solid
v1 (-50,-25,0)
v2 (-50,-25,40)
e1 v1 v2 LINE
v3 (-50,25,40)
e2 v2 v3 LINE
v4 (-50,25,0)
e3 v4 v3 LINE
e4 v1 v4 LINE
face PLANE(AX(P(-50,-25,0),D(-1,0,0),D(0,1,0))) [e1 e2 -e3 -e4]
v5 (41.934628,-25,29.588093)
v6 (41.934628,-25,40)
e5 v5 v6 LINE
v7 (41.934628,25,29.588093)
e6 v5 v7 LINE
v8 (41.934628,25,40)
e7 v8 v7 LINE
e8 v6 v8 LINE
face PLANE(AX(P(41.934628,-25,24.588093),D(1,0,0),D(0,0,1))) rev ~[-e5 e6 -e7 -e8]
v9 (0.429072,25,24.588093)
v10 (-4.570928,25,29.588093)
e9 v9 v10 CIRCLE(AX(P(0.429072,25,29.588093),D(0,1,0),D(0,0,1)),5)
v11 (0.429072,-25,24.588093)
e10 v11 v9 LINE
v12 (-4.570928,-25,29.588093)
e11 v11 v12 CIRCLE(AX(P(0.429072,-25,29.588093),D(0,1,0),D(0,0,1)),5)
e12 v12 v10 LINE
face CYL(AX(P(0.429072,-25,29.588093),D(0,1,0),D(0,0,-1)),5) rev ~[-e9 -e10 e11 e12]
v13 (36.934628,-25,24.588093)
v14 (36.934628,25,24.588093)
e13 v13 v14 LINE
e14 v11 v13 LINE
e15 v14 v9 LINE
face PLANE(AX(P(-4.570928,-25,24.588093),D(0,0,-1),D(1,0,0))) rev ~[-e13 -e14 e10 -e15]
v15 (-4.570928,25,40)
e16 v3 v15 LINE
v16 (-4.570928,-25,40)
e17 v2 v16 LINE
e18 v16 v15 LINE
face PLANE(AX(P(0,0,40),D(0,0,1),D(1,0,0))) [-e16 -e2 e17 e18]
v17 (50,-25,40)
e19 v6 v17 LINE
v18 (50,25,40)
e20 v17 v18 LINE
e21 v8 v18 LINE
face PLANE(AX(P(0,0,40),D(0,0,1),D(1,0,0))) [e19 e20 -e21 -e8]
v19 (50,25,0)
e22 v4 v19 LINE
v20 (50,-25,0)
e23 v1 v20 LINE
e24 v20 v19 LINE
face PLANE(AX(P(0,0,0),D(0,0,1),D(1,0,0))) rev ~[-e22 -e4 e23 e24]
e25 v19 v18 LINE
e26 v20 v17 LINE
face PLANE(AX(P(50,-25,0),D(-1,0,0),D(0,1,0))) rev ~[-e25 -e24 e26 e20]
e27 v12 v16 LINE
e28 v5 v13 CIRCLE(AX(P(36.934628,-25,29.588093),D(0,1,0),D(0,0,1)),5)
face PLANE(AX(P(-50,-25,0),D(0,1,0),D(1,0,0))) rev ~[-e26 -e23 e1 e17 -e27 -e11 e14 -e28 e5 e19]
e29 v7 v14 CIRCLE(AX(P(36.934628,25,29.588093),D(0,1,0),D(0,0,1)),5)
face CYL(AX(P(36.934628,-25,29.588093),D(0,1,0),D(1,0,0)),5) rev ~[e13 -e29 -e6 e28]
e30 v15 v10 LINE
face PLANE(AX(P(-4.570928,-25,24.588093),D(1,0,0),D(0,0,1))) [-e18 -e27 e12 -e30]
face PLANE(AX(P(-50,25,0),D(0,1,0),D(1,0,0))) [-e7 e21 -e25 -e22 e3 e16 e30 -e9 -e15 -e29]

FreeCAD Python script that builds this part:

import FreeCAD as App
import Part
import Sketcher

V = App.Vector


def edges_at(feature, points):
    """Names of the edges that pass closest to the given points."""
    edges = feature.Shape.Edges
    near = lambda p: min(range(len(edges)), key=lambda i: edges[i].distToShape(Part.Vertex(*p))[0])
    return sorted({f"Edge{near(p) + 1}" for p in points})

doc = App.newDocument("Part")
params = doc.addObject("Spreadsheet::Sheet", "Params")
for row, (alias, value) in enumerate([
    ("sketch1_width", "100 mm"),
    ("sketch1_height", "50 mm"),
    ("pad1_length", "40 mm"),
    ("pocket1_length", "99 mm"),
    ("fillet_radius", "5 mm"),
], start=1):
    params.set(f"A{row}", alias)
    params.set(f"B{row}", "=" + value)
    params.setAlias(f"B{row}", alias)

body = doc.addObject("PartDesign::Body", "Body")

# Sketch on XY plane
sketch1 = doc.addObject("Sketcher::SketchObject", "Sketch")
body.addObject(sketch1)
sketch1.AttachmentSupport = (doc.XY_Plane, [""])
sketch1.MapMode = "FlatFace"
sketch1.addGeometry([
    Part.LineSegment(V(-50, 25, 0), V(-50, -25, 0)),
    Part.LineSegment(V(-50, -25, 0), V(50, -25, 0)),
    Part.LineSegment(V(50, -25, 0), V(50, 25, 0)),
    Part.LineSegment(V(50, 25, 0), V(-50, 25, 0)),
], False)
sketch1.addConstraint([
    Sketcher.Constraint("Coincident", 0, 2, 1, 1),
    Sketcher.Constraint("Coincident", 1, 2, 2, 1),
    Sketcher.Constraint("Coincident", 2, 2, 3, 1),
    Sketcher.Constraint("Coincident", 3, 2, 0, 1),
    Sketcher.Constraint("Vertical", 0),
    Sketcher.Constraint("Horizontal", 1),
    Sketcher.Constraint("Vertical", 2),
    Sketcher.Constraint("Horizontal", 3),
    Sketcher.Constraint("Symmetric", 0, 2, 2, 2, -1, 1),
    Sketcher.Constraint("DistanceX", 1, 1, 1, 2, 100.0),
    Sketcher.Constraint("DistanceY", 0, 2, 0, 1, 50.0),
])
sketch1.setExpression("Constraints[9]", "Params.sketch1_width")
sketch1.setExpression("Constraints[10]", "Params.sketch1_height")
pad1 = doc.addObject("PartDesign::Pad", "Pad")
body.addObject(pad1)
pad1.Profile = sketch1
pad1.setExpression("Length", "Params.pad1_length")

# Sketch on XZ plane
sketch2 = doc.addObject("Sketcher::SketchObject", "Sketch001")
body.addObject(sketch2)
sketch2.AttachmentSupport = (doc.XZ_Plane, [""])
sketch2.MapMode = "FlatFace"
sketch2.AttachmentOffset = App.Placement(V(0, 0, 25), App.Rotation())
sketch2.addGeometry([
    Part.LineSegment(V(-5, 55, 0), V(-5, 25, 0)),
    Part.LineSegment(V(-5, 25, 0), V(42, 25, 0)),
    Part.LineSegment(V(42, 25, 0), V(42, 55, 0)),
    Part.LineSegment(V(42, 55, 0), V(-5, 55, 0)),
], False)
sketch2.addConstraint([
    Sketcher.Constraint("Coincident", 0, 2, 1, 1),
    Sketcher.Constraint("Coincident", 1, 2, 2, 1),
    Sketcher.Constraint("Coincident", 2, 2, 3, 1),
    Sketcher.Constraint("Coincident", 3, 2, 0, 1),
    Sketcher.Constraint("Vertical", 0),
    Sketcher.Constraint("Horizontal", 1),
    Sketcher.Constraint("Vertical", 2),
    Sketcher.Constraint("Horizontal", 3),
    Sketcher.Constraint("DistanceX", 1, 1, 1, 2, 46.505556),
    Sketcher.Constraint("DistanceY", 0, 2, 0, 1, 30.397546),
    Sketcher.Constraint("DistanceX", 0, 2, -1, 1, 4.570928),
    Sketcher.Constraint("DistanceY", -1, 1, 2, 2, 54.985639),
])
pocket1 = doc.addObject("PartDesign::Pocket", "Pocket")
body.addObject(pocket1)
pocket1.Profile = sketch2
pocket1.setExpression("Length", "Params.pocket1_length")
doc.recompute()

fillet = doc.addObject("PartDesign::Fillet", "Fillet")
body.addObject(fillet)
fillet.Base = (pocket1, edges_at(pocket1, [(-4.571, 0, 24.588), (41.935, 0, 24.588)]))
fillet.setExpression("Radius", "Params.fillet_radius")

doc.recompute()
